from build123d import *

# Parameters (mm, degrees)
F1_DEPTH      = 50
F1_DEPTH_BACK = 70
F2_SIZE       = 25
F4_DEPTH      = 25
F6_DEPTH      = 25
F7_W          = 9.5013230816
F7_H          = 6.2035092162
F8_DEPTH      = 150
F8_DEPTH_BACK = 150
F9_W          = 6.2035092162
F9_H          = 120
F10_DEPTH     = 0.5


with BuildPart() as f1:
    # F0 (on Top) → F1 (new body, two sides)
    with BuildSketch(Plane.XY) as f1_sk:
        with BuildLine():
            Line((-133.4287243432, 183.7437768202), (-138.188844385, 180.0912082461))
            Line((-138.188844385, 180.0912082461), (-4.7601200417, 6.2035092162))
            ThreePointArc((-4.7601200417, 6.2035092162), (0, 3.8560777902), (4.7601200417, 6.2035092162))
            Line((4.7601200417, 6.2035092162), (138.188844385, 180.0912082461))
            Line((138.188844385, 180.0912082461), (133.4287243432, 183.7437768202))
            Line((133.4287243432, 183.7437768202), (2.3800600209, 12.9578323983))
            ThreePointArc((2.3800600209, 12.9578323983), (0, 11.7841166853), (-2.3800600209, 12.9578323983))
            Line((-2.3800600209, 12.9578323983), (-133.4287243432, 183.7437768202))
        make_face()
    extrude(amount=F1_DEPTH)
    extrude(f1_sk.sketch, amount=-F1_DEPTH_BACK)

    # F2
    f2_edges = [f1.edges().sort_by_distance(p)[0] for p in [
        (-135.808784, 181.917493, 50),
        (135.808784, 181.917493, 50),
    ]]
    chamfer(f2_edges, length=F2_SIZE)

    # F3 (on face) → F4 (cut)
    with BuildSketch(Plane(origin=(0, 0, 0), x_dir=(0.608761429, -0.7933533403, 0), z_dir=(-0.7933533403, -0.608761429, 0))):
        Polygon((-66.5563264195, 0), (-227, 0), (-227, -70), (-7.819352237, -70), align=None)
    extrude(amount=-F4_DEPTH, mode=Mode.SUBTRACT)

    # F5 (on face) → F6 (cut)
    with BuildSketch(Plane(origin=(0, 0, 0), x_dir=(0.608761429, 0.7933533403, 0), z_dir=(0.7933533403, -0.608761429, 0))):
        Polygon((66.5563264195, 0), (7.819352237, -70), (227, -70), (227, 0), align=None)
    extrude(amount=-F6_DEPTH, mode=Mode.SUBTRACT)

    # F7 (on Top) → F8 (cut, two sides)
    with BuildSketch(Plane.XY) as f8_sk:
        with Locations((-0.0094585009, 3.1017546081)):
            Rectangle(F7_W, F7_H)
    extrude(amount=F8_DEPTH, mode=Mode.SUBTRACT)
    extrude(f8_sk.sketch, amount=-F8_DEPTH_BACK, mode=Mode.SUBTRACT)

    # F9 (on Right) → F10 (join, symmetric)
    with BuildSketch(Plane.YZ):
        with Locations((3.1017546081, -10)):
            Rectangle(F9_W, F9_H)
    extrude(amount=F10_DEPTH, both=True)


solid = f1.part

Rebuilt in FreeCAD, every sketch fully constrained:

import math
import FreeCAD as App
import Part
import Sketcher

V = App.Vector
Q = App.Units.Quantity


def edges_at(feature, points):
    """Names of the edges that pass closest to the given points."""
    edges = feature.Shape.Edges
    near = lambda p: min(range(len(edges)), key=lambda i: edges[i].distToShape(Part.Vertex(*p))[0])
    return sorted({f"Edge{near(p) + 1}" for p in points})


def add_polygon(sketch, points):
    """Adds a closed chain of lines whose ends are joined by coincident constraints."""
    first, n = sketch.GeometryCount, len(points)
    for a, b in zip(points, points[1:] + points[:1]):
        sketch.addGeometry(Part.LineSegment(App.Vector(*a, 0), App.Vector(*b, 0)), False)
    for i in range(n):
        sketch.addConstraint(Sketcher.Constraint("Coincident", first + i, 2, first + (i + 1) % n, 1))

doc = App.newDocument("Part")
body = doc.addObject("PartDesign::Body", "Body")

sketch1 = body.newObject("Sketcher::SketchObject", "Sketch")
sketch1.AttachmentSupport = (doc.getObject("XY_Plane"), [""])
sketch1.MapMode = "FlatFace"
sketch1.addGeometry([
    Part.LineSegment(V(-133.4, 183.7, 0), V(-138.2, 180.1, 0)),
    Part.LineSegment(V(-138.2, 180.1, 0), V(-4.8, 6.2, 0)),
    Part.ArcOfCircle(Part.Circle(V(0, 9.9, 0), V(0, 0, 1), 6), math.radians(-143), math.radians(-37)),
    Part.LineSegment(V(4.8, 6.2, 0), V(138.2, 180.1, 0)),
    Part.LineSegment(V(138.2, 180.1, 0), V(133.4, 183.7, 0)),
    Part.LineSegment(V(133.4, 183.7, 0), V(2.4, 13, 0)),
    Part.ArcOfCircle(Part.Circle(V(0, 14.8, 0), V(0, 0, 1), 3), math.radians(-143), math.radians(-37)),
    Part.LineSegment(V(-2.4, 13, 0), V(-133.4, 183.7, 0)),
], False)
sketch1.addConstraint([
    Sketcher.Constraint("Coincident", 0, 2, 1, 1),
    Sketcher.Constraint("Tangent", 1, 2, 2, 1),
    Sketcher.Constraint("Tangent", 2, 2, 3, 1),
    Sketcher.Constraint("Coincident", 3, 2, 4, 1),
    Sketcher.Constraint("Coincident", 4, 2, 5, 1),
    Sketcher.Constraint("Tangent", 5, 2, 6, 2),
    Sketcher.Constraint("Tangent", 6, 1, 7, 1),
    Sketcher.Constraint("Coincident", 7, 2, 0, 1),
    Sketcher.Constraint("Symmetric", 1, 2, 2, 2, -2),
    Sketcher.Constraint("Symmetric", 5, 2, 6, 1, -2),
    Sketcher.Constraint("Perpendicular", 0, 1),
    Sketcher.Constraint("Perpendicular", 3, 4),
    Sketcher.Constraint("Perpendicular", 4, 5),
    Sketcher.Constraint("Horizontal", 0, 2, 3, 2),
    Sketcher.Constraint("Radius", 2, Q("6 mm")),
    Sketcher.Constraint("Radius", 6, Q("3 mm")),
    Sketcher.Constraint("Distance", 0, Q("6 mm")),
    Sketcher.Constraint("Angle", 0, Q("-142.5 deg")),
    Sketcher.Constraint("DistanceY", 1, 2, 0, 2, Q("173.887699 mm")),
    Sketcher.Constraint("DistanceY", -1, 1, 0, 2, Q("180.091208 mm")),
])
pad1 = body.newObject("PartDesign::Pad", "Pad")
pad1.Profile = sketch1
pad1.Type = "TwoLengths"
pad1.Length = 50
pad1.Length2 = 70
doc.recompute()

chamfer = body.newObject("PartDesign::Chamfer", "Chamfer")
chamfer.Base = (pad1, edges_at(pad1, [(-135.809, 181.917, 50), (135.809, 181.917, 50)]))
chamfer.Size = 25

sketch2 = body.newObject("Sketcher::SketchObject", "Sketch001")
sketch2.Placement = App.Placement(V(0, 0, 0), App.Rotation(V(0.608761429, -0.79335334, 0), V(0, 0, 1), V(-0.79335334, -0.608761429, 0), "ZXY"))
add_polygon(sketch2, [(-67, 0), (-227, 0), (-227, -70), (-8, -70)])
sketch2.addConstraint([
    Sketcher.Constraint("Horizontal", 0),
    Sketcher.Constraint("Vertical", 1),
    Sketcher.Constraint("Horizontal", 2),
    Sketcher.Constraint("PointOnObject", 0, 2, -1),
    Sketcher.Constraint("DistanceY", 1, 2, 1, 1, Q("70 mm")),
    Sketcher.Constraint("Angle", 3, Q("130 deg")),
    Sketcher.Constraint("DistanceX", 0, 2, -1, 1, Q("227 mm")),
    Sketcher.Constraint("DistanceX", 0, 2, 0, 1, Q("160.443674 mm")),
])
pocket1 = body.newObject("PartDesign::Pocket", "Pocket")
pocket1.Profile = sketch2
pocket1.Length = 25

sketch3 = body.newObject("Sketcher::SketchObject", "Sketch002")
sketch3.Placement = App.Placement(V(0, 0, 0), App.Rotation(V(0.608761429, 0.79335334, 0), V(0, 0, 1), V(0.79335334, -0.608761429, 0), "ZXY"))
add_polygon(sketch3, [(67, 0), (8, -70), (227, -70), (227, 0)])
sketch3.addConstraint([
    Sketcher.Constraint("Horizontal", 1),
    Sketcher.Constraint("Vertical", 2),
    Sketcher.Constraint("Horizontal", 3),
    Sketcher.Constraint("PointOnObject", 2, 2, -1),
    Sketcher.Constraint("DistanceY", 2, 1, 2, 2, Q("70 mm")),
    Sketcher.Constraint("Angle", 0, Q("-130 deg")),
    Sketcher.Constraint("DistanceX", -1, 1, 1, 2, Q("227 mm")),
    Sketcher.Constraint("DistanceX", 1, 1, 1, 2, Q("219.180648 mm")),
])
pocket2 = body.newObject("PartDesign::Pocket", "Pocket001")
pocket2.Profile = sketch3
pocket2.Length = 25

sketch4 = body.newObject("Sketcher::SketchObject", "Sketch003")
sketch4.AttachmentSupport = (doc.getObject("XY_Plane"), [""])
sketch4.MapMode = "FlatFace"
add_polygon(sketch4, [(-5, 6), (-5, 0), (5, 0), (5, 6)])
sketch4.addConstraint([
    Sketcher.Constraint("Vertical", 0),
    Sketcher.Constraint("Horizontal", 1),
    Sketcher.Constraint("Vertical", 2),
    Sketcher.Constraint("Horizontal", 3),
    Sketcher.Constraint("PointOnObject", 0, 2, -1),
    Sketcher.Constraint("DistanceY", 0, 2, 0, 1, Q("6.203509 mm")),
    Sketcher.Constraint("DistanceX", 1, 1, 1, 2, Q("9.501323 mm")),
    Sketcher.Constraint("DistanceX", 0, 2, -1, 1, Q("4.76012 mm")),
])
pocket3 = body.newObject("PartDesign::Pocket", "Pocket002")
pocket3.Profile = sketch4
pocket3.Type = "ThroughAll"
pocket3.Midplane = True

sketch5 = body.newObject("Sketcher::SketchObject", "Sketch004")
sketch5.AttachmentSupport = (doc.getObject("YZ_Plane"), [""])
sketch5.MapMode = "FlatFace"
add_polygon(sketch5, [(0, 50), (0, -70), (6, -70), (6, 50)])
sketch5.addConstraint([
    Sketcher.Constraint("Vertical", 0),
    Sketcher.Constraint("Horizontal", 1),
    Sketcher.Constraint("Vertical", 2),
    Sketcher.Constraint("Horizontal", 3),
    Sketcher.Constraint("PointOnObject", 0, 2, -2),
    Sketcher.Constraint("DistanceY", 0, 2, 0, 1, Q("120 mm")),
    Sketcher.Constraint("DistanceY", 0, 2, -1, 1, Q("70 mm")),
    Sketcher.Constraint("DistanceX", 1, 1, 1, 2, Q("6.203509 mm")),
])
pad2 = body.newObject("PartDesign::Pad", "Pad001")
pad2.Profile = sketch5
pad2.Length = 1
pad2.Midplane = True

doc.recompute()
